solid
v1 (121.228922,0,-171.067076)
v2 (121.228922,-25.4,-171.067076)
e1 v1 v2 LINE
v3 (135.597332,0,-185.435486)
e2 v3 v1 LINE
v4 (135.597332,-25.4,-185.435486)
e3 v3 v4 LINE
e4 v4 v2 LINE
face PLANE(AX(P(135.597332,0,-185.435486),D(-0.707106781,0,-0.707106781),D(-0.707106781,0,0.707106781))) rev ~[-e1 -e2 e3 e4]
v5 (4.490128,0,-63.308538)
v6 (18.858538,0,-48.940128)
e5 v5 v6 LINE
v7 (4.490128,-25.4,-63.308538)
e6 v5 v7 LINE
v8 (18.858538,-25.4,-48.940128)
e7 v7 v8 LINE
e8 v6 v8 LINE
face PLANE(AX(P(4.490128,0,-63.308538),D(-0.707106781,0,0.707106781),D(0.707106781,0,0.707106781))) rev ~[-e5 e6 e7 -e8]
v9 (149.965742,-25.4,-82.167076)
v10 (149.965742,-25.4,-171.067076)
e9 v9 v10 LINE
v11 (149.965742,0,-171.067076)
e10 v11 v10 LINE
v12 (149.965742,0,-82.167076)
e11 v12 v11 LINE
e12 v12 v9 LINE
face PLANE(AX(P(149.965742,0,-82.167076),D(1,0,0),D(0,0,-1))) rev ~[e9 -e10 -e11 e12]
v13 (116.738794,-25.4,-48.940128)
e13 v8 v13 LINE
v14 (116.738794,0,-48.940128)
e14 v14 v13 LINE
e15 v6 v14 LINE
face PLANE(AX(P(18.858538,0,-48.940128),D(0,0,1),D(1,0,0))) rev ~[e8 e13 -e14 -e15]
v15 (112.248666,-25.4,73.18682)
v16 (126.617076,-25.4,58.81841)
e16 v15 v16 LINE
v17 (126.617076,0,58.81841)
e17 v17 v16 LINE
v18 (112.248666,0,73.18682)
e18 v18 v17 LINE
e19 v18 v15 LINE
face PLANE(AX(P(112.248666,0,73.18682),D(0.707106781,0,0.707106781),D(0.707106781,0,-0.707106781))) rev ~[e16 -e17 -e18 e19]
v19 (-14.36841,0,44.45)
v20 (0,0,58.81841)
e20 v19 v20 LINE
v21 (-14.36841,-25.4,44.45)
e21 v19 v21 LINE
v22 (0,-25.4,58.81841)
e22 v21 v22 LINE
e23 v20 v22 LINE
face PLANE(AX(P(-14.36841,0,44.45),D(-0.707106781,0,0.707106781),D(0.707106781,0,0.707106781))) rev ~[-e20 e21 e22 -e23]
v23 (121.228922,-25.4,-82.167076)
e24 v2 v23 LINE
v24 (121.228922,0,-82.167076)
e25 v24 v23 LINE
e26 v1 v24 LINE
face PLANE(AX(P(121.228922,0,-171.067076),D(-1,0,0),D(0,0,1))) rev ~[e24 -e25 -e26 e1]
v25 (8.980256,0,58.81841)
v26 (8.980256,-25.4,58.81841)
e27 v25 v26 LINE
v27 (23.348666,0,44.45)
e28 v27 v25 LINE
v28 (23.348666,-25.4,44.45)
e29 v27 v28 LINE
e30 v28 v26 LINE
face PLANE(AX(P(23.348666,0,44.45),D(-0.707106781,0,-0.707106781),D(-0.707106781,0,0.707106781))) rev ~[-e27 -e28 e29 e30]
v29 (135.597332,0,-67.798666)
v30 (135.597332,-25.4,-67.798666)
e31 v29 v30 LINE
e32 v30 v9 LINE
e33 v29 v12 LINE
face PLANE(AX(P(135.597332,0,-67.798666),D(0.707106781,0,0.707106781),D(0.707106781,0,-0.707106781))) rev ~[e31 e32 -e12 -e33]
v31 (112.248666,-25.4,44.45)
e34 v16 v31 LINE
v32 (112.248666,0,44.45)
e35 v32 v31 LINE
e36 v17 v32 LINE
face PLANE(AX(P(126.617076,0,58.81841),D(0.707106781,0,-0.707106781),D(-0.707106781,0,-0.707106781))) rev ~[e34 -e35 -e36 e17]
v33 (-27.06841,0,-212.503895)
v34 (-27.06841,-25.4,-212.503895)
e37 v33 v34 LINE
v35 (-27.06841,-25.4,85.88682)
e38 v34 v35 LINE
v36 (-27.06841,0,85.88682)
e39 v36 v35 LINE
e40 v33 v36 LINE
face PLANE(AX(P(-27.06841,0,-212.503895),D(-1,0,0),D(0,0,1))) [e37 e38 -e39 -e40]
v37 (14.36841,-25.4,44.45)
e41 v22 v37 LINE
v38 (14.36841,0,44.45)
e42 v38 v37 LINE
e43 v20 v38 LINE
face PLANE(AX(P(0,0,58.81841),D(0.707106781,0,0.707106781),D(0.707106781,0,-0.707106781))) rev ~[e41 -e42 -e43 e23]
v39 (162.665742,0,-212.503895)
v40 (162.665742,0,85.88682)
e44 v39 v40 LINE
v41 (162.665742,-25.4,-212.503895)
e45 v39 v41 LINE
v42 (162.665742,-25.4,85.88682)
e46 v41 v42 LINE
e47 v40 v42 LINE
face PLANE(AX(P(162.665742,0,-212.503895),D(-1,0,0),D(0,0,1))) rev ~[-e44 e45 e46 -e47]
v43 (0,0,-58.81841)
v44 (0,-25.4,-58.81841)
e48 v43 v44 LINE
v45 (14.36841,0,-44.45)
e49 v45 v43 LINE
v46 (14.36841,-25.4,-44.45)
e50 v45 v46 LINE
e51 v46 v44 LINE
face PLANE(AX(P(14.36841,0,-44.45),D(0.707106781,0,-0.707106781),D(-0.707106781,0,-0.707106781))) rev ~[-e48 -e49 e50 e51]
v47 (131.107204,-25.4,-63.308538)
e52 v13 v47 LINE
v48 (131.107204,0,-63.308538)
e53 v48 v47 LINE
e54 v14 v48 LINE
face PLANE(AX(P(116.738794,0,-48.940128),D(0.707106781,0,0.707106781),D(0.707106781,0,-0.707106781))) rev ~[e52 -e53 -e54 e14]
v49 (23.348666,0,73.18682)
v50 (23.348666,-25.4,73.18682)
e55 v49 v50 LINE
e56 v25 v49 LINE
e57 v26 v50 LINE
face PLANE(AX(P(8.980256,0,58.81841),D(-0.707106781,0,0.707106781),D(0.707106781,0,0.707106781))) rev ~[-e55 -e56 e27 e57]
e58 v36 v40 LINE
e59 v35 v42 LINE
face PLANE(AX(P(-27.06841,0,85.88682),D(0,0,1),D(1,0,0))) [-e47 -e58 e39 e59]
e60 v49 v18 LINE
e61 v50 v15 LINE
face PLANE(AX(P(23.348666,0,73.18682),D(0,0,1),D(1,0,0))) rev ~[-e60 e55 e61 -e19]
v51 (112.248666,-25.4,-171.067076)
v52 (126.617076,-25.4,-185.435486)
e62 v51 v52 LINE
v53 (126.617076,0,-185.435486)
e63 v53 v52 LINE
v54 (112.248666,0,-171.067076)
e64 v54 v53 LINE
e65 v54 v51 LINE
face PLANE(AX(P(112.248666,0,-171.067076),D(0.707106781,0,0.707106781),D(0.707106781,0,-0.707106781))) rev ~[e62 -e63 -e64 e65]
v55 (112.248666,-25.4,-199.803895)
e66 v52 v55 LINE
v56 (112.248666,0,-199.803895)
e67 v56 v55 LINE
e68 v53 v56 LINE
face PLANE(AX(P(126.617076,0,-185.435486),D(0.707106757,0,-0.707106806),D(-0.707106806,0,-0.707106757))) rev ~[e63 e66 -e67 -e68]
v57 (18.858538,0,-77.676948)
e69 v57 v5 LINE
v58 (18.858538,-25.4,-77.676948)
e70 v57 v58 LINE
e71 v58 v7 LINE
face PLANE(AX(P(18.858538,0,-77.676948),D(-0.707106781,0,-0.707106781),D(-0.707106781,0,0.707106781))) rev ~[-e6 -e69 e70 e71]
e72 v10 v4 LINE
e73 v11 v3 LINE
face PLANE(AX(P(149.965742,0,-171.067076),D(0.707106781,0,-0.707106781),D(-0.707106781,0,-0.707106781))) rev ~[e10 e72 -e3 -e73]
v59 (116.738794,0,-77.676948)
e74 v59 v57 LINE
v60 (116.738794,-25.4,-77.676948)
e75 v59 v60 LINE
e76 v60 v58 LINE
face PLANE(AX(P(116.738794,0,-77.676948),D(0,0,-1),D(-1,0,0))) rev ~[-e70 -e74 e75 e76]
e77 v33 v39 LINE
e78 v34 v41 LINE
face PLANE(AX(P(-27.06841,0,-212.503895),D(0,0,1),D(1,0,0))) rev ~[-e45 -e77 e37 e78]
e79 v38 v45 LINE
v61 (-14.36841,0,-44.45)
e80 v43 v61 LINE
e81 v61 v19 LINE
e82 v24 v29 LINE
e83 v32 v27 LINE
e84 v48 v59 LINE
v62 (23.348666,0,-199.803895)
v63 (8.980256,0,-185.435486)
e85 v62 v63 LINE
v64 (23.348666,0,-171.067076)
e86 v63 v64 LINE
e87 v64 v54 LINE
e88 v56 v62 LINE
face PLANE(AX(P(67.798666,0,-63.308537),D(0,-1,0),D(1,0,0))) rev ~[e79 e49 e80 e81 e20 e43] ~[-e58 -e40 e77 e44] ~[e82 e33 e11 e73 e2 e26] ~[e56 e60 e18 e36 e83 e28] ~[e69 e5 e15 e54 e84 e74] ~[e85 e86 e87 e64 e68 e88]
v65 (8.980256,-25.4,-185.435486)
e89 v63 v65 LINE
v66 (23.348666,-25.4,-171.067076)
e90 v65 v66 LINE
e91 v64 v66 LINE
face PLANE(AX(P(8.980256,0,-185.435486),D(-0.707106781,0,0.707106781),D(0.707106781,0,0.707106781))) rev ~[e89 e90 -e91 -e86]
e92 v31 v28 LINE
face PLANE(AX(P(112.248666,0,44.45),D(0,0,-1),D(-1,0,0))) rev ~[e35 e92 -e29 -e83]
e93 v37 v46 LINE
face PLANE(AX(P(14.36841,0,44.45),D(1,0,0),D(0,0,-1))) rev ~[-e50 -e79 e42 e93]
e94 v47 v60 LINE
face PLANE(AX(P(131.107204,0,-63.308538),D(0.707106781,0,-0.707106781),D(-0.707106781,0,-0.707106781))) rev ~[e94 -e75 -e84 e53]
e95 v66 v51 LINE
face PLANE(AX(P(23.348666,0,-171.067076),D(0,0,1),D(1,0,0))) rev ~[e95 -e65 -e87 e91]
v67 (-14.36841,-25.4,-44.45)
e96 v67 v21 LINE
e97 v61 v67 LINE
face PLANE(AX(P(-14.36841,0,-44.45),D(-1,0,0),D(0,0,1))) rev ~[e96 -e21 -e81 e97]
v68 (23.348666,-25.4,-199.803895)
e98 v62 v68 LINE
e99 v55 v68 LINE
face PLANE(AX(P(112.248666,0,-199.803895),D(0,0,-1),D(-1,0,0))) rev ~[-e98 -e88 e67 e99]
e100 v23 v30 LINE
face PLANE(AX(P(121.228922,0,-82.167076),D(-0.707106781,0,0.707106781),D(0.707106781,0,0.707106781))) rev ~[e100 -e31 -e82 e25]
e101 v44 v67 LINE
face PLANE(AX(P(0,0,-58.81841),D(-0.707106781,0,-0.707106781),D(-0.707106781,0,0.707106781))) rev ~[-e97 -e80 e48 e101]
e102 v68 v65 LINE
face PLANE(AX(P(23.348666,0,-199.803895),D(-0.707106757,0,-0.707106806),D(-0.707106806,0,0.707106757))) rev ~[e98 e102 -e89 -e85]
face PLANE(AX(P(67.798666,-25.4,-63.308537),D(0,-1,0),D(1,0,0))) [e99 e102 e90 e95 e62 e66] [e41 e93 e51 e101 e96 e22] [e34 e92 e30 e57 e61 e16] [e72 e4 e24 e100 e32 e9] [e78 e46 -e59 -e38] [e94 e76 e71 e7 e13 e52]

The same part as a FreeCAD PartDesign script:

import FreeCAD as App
import Part
import Sketcher
Q = App.Units.Quantity


def add_polygon(sketch, points):
    """Adds a closed chain of lines whose ends are joined by coincident constraints."""
    first, n = sketch.GeometryCount, len(points)
    for a, b in zip(points, points[1:] + points[:1]):
        sketch.addGeometry(Part.LineSegment(App.Vector(*a, 0), App.Vector(*b, 0)), False)
    for i in range(n):
        sketch.addConstraint(Sketcher.Constraint("Coincident", first + i, 2, first + (i + 1) % n, 1))

doc = App.newDocument("Part")
params = doc.addObject("Spreadsheet::Sheet", "Params")
for row, (alias, value) in enumerate([
    ("sketch1_width", "3.5 in"),
    ("sketch1_length", "0.8 in"),
    ("pad1_length", "1 in"),
], start=1):
    params.set(f"A{row}", alias)
    params.set(f"B{row}", "=" + value)
    params.setAlias(f"B{row}", alias)

body = doc.addObject("PartDesign::Body", "Body")

sketch1 = body.newObject("Sketcher::SketchObject", "Sketch")
sketch1.AttachmentSupport = (doc.getObject("XZ_Plane"), [""])
sketch1.MapMode = "FlatFace"
add_polygon(sketch1, [(-27.06841, 85.88682), (-27.06841, -212.503895), (162.665742, -212.503895), (162.665742, 85.88682)])
add_polygon(sketch1, [(4.490128, -63.308538), (18.858538, -48.940128), (116.738794, -48.940128), (131.107204, -63.308538), (116.738794, -77.676948), (18.858538, -77.676948)])
add_polygon(sketch1, [(135.597332, -67.798666), (149.965742, -82.167076), (149.965742, -171.067076), (135.597332, -185.435486), (121.228922, -171.067076), (121.228922, -82.167076)])
add_polygon(sketch1, [(126.617076, -185.435486), (112.248666, -199.803895), (23.348666, -199.803895), (8.980256, -185.435486), (23.348666, -171.067076), (112.248666, -171.067076)])
add_polygon(sketch1, [(112.248666, 73.18682), (126.617076, 58.81841), (112.248666, 44.45), (23.348666, 44.45), (8.980256, 58.81841), (23.348666, 73.18682)])
add_polygon(sketch1, [(-14.36841, 44.45), (0, 58.81841), (14.36841, 44.45), (14.36841, -44.45), (0, -58.81841), (-14.36841, -44.45)])
sketch1.addConstraint([
    Sketcher.Constraint("Vertical", 0),
    Sketcher.Constraint("Horizontal", 1),
    Sketcher.Constraint("Vertical", 2),
    Sketcher.Constraint("Horizontal", 3),
    Sketcher.Constraint("Horizontal", 5),
    Sketcher.Constraint("Horizontal", 8),
    Sketcher.Constraint("Vertical", 11),
    Sketcher.Constraint("Vertical", 14),
    Sketcher.Constraint("Horizontal", 17),
    Sketcher.Constraint("Horizontal", 20),
    Sketcher.Constraint("Horizontal", 24),
    Sketcher.Constraint("Horizontal", 27),
    Sketcher.Constraint("Vertical", 30),
    Sketcher.Constraint("Vertical", 33),
    Sketcher.Constraint("Symmetric", 28, 2, 31, 2, -1, 1),
    Sketcher.Constraint("Symmetric", 29, 2, 32, 2, -1, 1),
    Sketcher.Constraint("PointOnObject", 28, 2, -2),
    Sketcher.Constraint("Perpendicular", 4, 6),
    Sketcher.Constraint("Perpendicular", 6, 7),
    Sketcher.Constraint("Perpendicular", 7, 9),
    Sketcher.Constraint("Parallel", 9, 10),
    Sketcher.Constraint("Perpendicular", 10, 12),
    Sketcher.Constraint("Perpendicular", 12, 13),
    Sketcher.Constraint("Perpendicular", 13, 15),
    Sketcher.Constraint("Parallel", 15, 16),
    Sketcher.Constraint("Perpendicular", 16, 18),
    Sketcher.Constraint("Perpendicular", 18, 19),
    Sketcher.Constraint("Perpendicular", 19, 21),
    Sketcher.Constraint("Parallel", 21, 22),
    Sketcher.Constraint("Perpendicular", 22, 23),
    Sketcher.Constraint("Perpendicular", 23, 25),
    Sketcher.Constraint("Perpendicular", 25, 26),
    Sketcher.Constraint("Parallel", 26, 28),
    Sketcher.Constraint("Perpendicular", 28, 29),
    Sketcher.Constraint("Perpendicular", 29, 31),
    Sketcher.Constraint("Horizontal", 6, 2, 9, 2),
    Sketcher.Constraint("Horizontal", 11, 2, 13, 2),
    Sketcher.Constraint("Horizontal", 10, 2, 14, 2),
    Sketcher.Constraint("Horizontal", 12, 2, 18, 2),
    Sketcher.Constraint("Horizontal", 13, 2, 19, 2),
    Sketcher.Constraint("Horizontal", 18, 2, 21, 2),
    Sketcher.Constraint("Horizontal", 22, 2, 25, 2),
    Sketcher.Constraint("Horizontal", 25, 2, 28, 2),
    Sketcher.Constraint("Horizontal", 24, 2, 29, 2),
    Sketcher.Constraint("Horizontal", 30, 2, 32, 2),
    Sketcher.Constraint("Vertical", 5, 2, 7, 2),
    Sketcher.Constraint("Vertical", 17, 2, 19, 2),
    Sketcher.Constraint("Vertical", 21, 2, 22, 2),
    Sketcher.Constraint("Vertical", 20, 2, 23, 2),
    Sketcher.Constraint("Vertical", 19, 2, 24, 2),
    Sketcher.Constraint("Vertical", 24, 2, 26, 2),
    Sketcher.Constraint("Equal", 27, 11),
    Sketcher.Constraint("Equal", 14, 30),
    Sketcher.Constraint("Equal", 9, 10),
    Sketcher.Constraint("DistanceX", 17, 2, 17, 1, Q("3.5 in")),
    Sketcher.Constraint("Distance", 4, Q("0.8 in")),
    Sketcher.Constraint("DistanceX", 10, 2, 1, 2, Q("0.5 in")),
    Sketcher.Constraint("DistanceY", 1, 2, 16, 2, Q("0.5 in")),
    Sketcher.Constraint("DistanceY", 26, 2, 3, 2, Q("0.5 in")),
    Sketcher.Constraint("DistanceX", 3, 2, 33, 2, Q("0.5 in")),
    Sketcher.Constraint("DistanceX", 1, 1, 1, 2, Q("189.734152 mm")),
    Sketcher.Constraint("DistanceX", 5, 1, 5, 2, Q("97.880256 mm")),
    Sketcher.Constraint("DistanceY", 0, 2, 0, 1, Q("298.390715 mm")),
    Sketcher.Constraint("DistanceX", -1, 1, 9, 2, Q("4.490128 mm")),
    Sketcher.Constraint("DistanceY", 4, 2, 3, 2, Q("134.826949 mm")),
    Sketcher.Constraint("DistanceX", 8, 2, 17, 2, Q("4.490128 mm")),
])
sketch1.setExpression("Constraints[88]", "Params.sketch1_width")
sketch1.setExpression("Constraints[89]", "Params.sketch1_length")
pad1 = body.newObject("PartDesign::Pad", "Pad")
pad1.Profile = sketch1
pad1.setExpression("Length", "Params.pad1_length")

doc.recompute()
